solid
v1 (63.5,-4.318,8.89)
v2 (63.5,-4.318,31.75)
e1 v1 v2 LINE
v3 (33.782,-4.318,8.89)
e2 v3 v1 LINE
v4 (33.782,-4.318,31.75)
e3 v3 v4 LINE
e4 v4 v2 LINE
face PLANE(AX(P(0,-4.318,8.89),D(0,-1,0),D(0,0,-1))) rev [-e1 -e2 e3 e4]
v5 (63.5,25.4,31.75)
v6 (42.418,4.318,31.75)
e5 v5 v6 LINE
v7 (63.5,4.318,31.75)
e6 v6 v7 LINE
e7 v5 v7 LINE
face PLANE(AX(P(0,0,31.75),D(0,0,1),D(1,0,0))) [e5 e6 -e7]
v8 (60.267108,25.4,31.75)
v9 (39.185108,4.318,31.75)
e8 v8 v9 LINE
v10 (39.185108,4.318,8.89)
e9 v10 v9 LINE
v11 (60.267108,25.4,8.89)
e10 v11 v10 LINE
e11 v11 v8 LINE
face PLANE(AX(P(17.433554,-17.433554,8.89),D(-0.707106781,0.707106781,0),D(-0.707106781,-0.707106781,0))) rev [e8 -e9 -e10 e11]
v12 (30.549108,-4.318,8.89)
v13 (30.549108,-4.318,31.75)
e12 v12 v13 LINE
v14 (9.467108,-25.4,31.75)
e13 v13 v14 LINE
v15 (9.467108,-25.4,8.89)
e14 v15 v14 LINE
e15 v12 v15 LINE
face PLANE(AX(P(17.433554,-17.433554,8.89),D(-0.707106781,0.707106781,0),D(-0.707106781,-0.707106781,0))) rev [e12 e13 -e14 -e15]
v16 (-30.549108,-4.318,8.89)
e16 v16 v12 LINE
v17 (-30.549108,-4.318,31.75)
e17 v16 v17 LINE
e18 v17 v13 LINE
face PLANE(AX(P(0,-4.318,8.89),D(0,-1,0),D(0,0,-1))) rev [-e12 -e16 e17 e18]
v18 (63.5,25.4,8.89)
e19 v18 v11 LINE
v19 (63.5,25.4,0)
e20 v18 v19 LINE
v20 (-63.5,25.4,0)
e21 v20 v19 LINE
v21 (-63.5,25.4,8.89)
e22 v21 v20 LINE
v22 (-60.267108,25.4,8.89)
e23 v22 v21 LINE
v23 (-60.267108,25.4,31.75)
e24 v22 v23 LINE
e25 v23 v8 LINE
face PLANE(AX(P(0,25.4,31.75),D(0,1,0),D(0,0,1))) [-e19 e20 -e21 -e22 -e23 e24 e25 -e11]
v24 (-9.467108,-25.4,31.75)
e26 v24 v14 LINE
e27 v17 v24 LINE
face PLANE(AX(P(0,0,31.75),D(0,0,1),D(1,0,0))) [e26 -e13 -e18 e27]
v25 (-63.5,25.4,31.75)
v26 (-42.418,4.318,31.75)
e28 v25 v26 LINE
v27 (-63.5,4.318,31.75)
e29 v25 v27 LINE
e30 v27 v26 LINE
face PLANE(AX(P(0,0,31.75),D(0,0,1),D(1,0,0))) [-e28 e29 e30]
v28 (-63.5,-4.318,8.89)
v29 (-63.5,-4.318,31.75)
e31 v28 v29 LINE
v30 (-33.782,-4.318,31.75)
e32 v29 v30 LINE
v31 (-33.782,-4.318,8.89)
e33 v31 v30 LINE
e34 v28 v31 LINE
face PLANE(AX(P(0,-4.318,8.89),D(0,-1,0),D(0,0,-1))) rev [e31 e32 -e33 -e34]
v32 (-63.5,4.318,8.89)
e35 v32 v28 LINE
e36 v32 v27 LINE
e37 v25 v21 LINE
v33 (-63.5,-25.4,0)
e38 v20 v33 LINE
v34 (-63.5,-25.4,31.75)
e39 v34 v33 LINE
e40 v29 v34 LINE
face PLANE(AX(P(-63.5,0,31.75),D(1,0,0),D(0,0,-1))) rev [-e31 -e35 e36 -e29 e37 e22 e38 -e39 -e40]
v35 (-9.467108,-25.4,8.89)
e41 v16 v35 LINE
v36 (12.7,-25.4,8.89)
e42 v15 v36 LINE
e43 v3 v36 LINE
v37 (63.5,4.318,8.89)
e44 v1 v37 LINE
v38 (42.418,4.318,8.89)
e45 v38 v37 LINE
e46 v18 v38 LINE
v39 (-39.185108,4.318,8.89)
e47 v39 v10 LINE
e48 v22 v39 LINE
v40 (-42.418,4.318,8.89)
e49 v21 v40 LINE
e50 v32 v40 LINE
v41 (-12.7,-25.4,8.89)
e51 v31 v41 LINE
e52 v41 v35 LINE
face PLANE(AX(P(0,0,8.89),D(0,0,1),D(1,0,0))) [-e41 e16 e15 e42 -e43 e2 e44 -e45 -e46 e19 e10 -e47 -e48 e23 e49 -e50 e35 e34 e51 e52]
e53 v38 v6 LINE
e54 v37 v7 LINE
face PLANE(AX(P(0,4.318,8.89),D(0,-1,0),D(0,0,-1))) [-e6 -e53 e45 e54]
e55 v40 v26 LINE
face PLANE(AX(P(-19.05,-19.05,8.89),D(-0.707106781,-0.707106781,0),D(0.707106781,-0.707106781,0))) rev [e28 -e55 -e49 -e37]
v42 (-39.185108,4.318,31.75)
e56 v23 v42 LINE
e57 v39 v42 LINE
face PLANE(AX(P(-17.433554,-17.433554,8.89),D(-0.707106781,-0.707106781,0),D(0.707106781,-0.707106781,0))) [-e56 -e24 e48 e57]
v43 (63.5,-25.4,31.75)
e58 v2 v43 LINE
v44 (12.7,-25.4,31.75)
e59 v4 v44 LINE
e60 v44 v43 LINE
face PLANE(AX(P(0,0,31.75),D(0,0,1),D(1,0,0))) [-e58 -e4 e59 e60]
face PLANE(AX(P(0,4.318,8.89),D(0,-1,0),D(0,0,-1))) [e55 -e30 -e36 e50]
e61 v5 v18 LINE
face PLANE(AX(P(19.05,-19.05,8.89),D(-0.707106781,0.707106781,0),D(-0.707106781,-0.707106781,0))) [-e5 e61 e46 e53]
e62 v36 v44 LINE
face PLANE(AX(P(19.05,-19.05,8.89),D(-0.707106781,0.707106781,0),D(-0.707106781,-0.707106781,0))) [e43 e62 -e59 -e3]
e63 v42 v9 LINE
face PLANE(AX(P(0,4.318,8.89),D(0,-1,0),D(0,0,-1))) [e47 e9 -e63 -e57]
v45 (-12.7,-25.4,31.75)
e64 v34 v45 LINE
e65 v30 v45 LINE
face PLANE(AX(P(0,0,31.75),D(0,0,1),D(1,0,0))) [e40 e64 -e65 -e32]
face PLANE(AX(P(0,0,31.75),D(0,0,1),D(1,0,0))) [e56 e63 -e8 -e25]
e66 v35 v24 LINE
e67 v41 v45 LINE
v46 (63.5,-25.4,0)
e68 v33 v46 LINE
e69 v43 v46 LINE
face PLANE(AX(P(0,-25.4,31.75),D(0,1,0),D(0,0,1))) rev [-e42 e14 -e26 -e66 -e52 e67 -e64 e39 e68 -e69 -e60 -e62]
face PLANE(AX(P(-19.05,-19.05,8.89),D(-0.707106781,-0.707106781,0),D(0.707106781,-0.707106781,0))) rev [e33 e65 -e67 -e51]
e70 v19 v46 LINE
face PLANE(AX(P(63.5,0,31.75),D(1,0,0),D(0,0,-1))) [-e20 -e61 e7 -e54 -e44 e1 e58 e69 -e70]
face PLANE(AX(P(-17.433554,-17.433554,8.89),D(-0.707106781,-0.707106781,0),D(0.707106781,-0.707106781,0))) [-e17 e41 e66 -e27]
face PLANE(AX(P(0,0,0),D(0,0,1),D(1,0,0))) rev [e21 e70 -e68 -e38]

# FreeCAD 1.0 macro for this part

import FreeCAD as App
import Part
import Sketcher

V = App.Vector
Q = App.Units.Quantity


def add_polygon(sketch, points):
    """Adds a closed chain of lines whose ends are joined by coincident constraints."""
    first, n = sketch.GeometryCount, len(points)
    for a, b in zip(points, points[1:] + points[:1]):
        sketch.addGeometry(Part.LineSegment(App.Vector(*a, 0), App.Vector(*b, 0)), False)
    for i in range(n):
        sketch.addConstraint(Sketcher.Constraint("Coincident", first + i, 2, first + (i + 1) % n, 1))

doc = App.newDocument("Part")
body = doc.addObject("PartDesign::Body", "Body")

sketch1 = doc.addObject("Sketcher::SketchObject", "Sketch")
body.addObject(sketch1)
sketch1.AttachmentSupport = (doc.XY_Plane, [""])
sketch1.MapMode = "FlatFace"
add_polygon(sketch1, [(-64, -25), (64, -25), (64, 25), (-64, 25)])
sketch1.addConstraint(Sketcher.Constraint("Horizontal", 0))
sketch1.addConstraint(Sketcher.Constraint("Vertical", 1))
sketch1.addConstraint(Sketcher.Constraint("Horizontal", 2))
sketch1.addConstraint(Sketcher.Constraint("Vertical", 3))
sketch1.addConstraint(Sketcher.Constraint("Symmetric", 0, 2, 2, 2, -1, 1))
sketch1.addConstraint(Sketcher.Constraint("DistanceX", 0, 1, 0, 2, Q("5 in")))
sketch1.addConstraint(Sketcher.Constraint("DistanceY", 1, 1, 1, 2, Q("2 in")))
pad1 = doc.addObject("PartDesign::Pad", "Pad")
body.addObject(pad1)
pad1.Profile = sketch1
pad1.Length = Q("1.25 in")

sketch2 = doc.addObject("Sketcher::SketchObject", "Sketch001")
body.addObject(sketch2)
sketch2.AttachmentSupport = (doc.XY_Plane, [""])
sketch2.MapMode = "FlatFace"
sketch2.AttachmentOffset = App.Placement(V(0, 0, 1.25 * 25.4), App.Rotation())
add_polygon(sketch2, [(63.5, 25.4), (60.3, 25.4), (39.2, 4.3), (-39.2, 4.3), (-60.3, 25.4), (-63.5, 25.4), (-42.4, 4.3), (-63.5, 4.3), (-63.5, -4.3), (-33.8, -4.3), (-12.7, -25.4), (-9.5, -25.4), (-30.5, -4.3), (30.5, -4.3), (9.5, -25.4), (12.7, -25.4), (33.8, -4.3), (63.5, -4.3), (63.5, 4.3), (42.4, 4.3)])
sketch2.addConstraint(Sketcher.Constraint("Horizontal", 0))
sketch2.addConstraint(Sketcher.Constraint("Horizontal", 2))
sketch2.addConstraint(Sketcher.Constraint("Horizontal", 4))
sketch2.addConstraint(Sketcher.Constraint("Horizontal", 6))
sketch2.addConstraint(Sketcher.Constraint("Vertical", 7))
sketch2.addConstraint(Sketcher.Constraint("Horizontal", 8))
sketch2.addConstraint(Sketcher.Constraint("Horizontal", 10))
sketch2.addConstraint(Sketcher.Constraint("Horizontal", 12))
sketch2.addConstraint(Sketcher.Constraint("Horizontal", 14))
sketch2.addConstraint(Sketcher.Constraint("Horizontal", 16))
sketch2.addConstraint(Sketcher.Constraint("Vertical", 17))
sketch2.addConstraint(Sketcher.Constraint("Horizontal", 18))
sketch2.addConstraint(Sketcher.Constraint("Symmetric", 6, 2, 16, 2, -1, 1))
sketch2.addConstraint(Sketcher.Constraint("Symmetric", 0, 2, 3, 2, -2))
sketch2.addConstraint(Sketcher.Constraint("Symmetric", 10, 2, 13, 2, -2))
sketch2.addConstraint(Sketcher.Constraint("Symmetric", 8, 2, 15, 2, -2))
sketch2.addConstraint(Sketcher.Constraint("Symmetric", 5, 2, 18, 2, -2))
sketch2.addConstraint(Sketcher.Constraint("Perpendicular", 1, 3))
sketch2.addConstraint(Sketcher.Constraint("Parallel", 3, 5))
sketch2.addConstraint(Sketcher.Constraint("Parallel", 5, 9))
sketch2.addConstraint(Sketcher.Constraint("Parallel", 9, 11))
sketch2.addConstraint(Sketcher.Constraint("Perpendicular", 11, 13))
sketch2.addConstraint(Sketcher.Constraint("Parallel", 13, 15))
sketch2.addConstraint(Sketcher.Constraint("Parallel", 15, 19))
sketch2.addConstraint(Sketcher.Constraint("Horizontal", 2, 2, 5, 2))
sketch2.addConstraint(Sketcher.Constraint("Horizontal", 8, 2, 11, 2))
sketch2.addConstraint(Sketcher.Constraint("Vertical", 4, 2, 6, 2))
sketch2.addConstraint(Sketcher.Constraint("Vertical", 17, 2, 19, 2))
sketch2.addConstraint(Sketcher.Constraint("Equal", 4, 10))
sketch2.addConstraint(Sketcher.Constraint("Equal", 5, 9))
sketch2.addConstraint(Sketcher.Constraint("DistanceY", -1, 1, 0, 2, Q("1 in")))
sketch2.addConstraint(Sketcher.Constraint("DistanceX", 7, 2, 9, 2, Q("2 in")))
sketch2.addConstraint(Sketcher.Constraint("DistanceX", 9, 2, 14, 2, Q("1 in")))
sketch2.addConstraint(Sketcher.Constraint("DistanceX", 6, 2, 6, 1, Q("0.83 in")))
sketch2.addConstraint(Sketcher.Constraint("DistanceX", 0, 2, 0, 1, 3.232892))
pocket1 = doc.addObject("PartDesign::Pocket", "Pocket")
body.addObject(pocket1)
pocket1.Profile = sketch2
pocket1.Length = Q("0.9 in")

doc.recompute()
